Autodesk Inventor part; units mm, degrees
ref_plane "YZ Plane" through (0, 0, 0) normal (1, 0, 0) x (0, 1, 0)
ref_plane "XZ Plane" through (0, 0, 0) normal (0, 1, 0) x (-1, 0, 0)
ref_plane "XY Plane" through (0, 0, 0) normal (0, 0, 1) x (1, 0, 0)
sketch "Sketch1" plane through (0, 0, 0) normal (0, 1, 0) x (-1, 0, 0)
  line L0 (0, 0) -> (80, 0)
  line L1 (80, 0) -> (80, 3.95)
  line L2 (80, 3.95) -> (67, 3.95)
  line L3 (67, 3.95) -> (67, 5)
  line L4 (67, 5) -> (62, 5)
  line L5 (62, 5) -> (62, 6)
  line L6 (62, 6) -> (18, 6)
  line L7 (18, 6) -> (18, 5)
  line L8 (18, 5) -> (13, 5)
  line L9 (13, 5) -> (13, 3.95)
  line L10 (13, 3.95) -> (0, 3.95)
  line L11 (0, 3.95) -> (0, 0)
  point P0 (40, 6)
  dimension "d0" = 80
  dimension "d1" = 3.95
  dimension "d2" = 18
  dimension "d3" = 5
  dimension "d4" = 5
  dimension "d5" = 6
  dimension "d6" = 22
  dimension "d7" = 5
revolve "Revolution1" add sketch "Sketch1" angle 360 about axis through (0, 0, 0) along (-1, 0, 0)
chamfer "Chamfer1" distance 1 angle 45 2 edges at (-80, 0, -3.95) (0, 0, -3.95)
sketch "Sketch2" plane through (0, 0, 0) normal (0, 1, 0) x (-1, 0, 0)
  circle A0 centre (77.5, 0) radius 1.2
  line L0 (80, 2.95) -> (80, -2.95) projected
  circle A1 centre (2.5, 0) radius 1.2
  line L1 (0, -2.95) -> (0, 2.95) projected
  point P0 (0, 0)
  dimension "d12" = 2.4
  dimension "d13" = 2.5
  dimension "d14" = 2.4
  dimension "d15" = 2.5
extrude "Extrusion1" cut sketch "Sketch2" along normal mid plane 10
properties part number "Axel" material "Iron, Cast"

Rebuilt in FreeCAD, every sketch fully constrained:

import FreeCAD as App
import Part
import Sketcher
from FreeCAD import Vector
Q = App.Units.Quantity


def edges_at(feature, points):
    """Names of the edges that pass closest to the given points."""
    edges = feature.Shape.Edges
    near = lambda p: min(range(len(edges)), key=lambda i: edges[i].distToShape(Part.Vertex(*p))[0])
    return sorted({f"Edge{near(p) + 1}" for p in points})


def add_polygon(sketch, points):
    """Adds a closed chain of lines whose ends are joined by coincident constraints."""
    first, n = sketch.GeometryCount, len(points)
    for a, b in zip(points, points[1:] + points[:1]):
        sketch.addGeometry(Part.LineSegment(App.Vector(*a, 0), App.Vector(*b, 0)), False)
    for i in range(n):
        sketch.addConstraint(Sketcher.Constraint("Coincident", first + i, 2, first + (i + 1) % n, 1))

doc = App.newDocument("Part")
body = doc.addObject("PartDesign::Body", "Body")

sketch1 = body.newObject("Sketcher::SketchObject", "Sketch")
sketch1.AttachmentSupport = (doc.getObject("XZ_Plane"), [""])
sketch1.MapMode = "FlatFace"
add_polygon(sketch1, [(0, 4), (0, 0), (-80, 0), (-80, 4), (-67, 4), (-67, 5), (-62, 5), (-62, 6), (-18, 6), (-18, 5), (-13, 5), (-13, 4)])
sketch1.addConstraint([
    Sketcher.Constraint("Vertical", 0),
    Sketcher.Constraint("Horizontal", 1),
    Sketcher.Constraint("Vertical", 2),
    Sketcher.Constraint("Horizontal", 3),
    Sketcher.Constraint("Vertical", 4),
    Sketcher.Constraint("Horizontal", 5),
    Sketcher.Constraint("Vertical", 6),
    Sketcher.Constraint("Horizontal", 7),
    Sketcher.Constraint("Vertical", 8),
    Sketcher.Constraint("Horizontal", 9),
    Sketcher.Constraint("Vertical", 10),
    Sketcher.Constraint("Horizontal", 11),
    Sketcher.Constraint("Coincident", 0, 2, -1, 1),
    Sketcher.Constraint("Horizontal", 5, 2, 8, 2),
    Sketcher.Constraint("Horizontal", 3, 2, 10, 2),
    Sketcher.Constraint("Equal", 5, 9),
    Sketcher.Constraint("Equal", 3, 11),
    Sketcher.Constraint("DistanceX", 1, 2, 1, 1, Q("80 mm")),
    Sketcher.Constraint("DistanceX", 5, 1, 5, 2, Q("5 mm")),
    Sketcher.Constraint("DistanceY", -1, 1, 4, 2, Q("5 mm")),
    Sketcher.Constraint("DistanceY", -1, 1, 6, 2, Q("6 mm")),
    Sketcher.Constraint("DistanceX", 7, 2, -1, 1, Q("18 mm")),
    Sketcher.Constraint("DistanceY", 0, 2, 0, 1, Q("3.95 mm")),
])
revolution = body.newObject("PartDesign::Revolution", "Revolution")
revolution.Profile = sketch1
revolution.ReferenceAxis = (sketch1, ["H_Axis"])
revolution.Angle = 360
doc.recompute()

chamfer = body.newObject("PartDesign::Chamfer", "Chamfer")
chamfer.Base = (revolution, edges_at(revolution, [(-80, 0, -3.95), (0, 0, -3.95)]))
chamfer.Size = 1

sketch2 = body.newObject("Sketcher::SketchObject", "Sketch001")
sketch2.AttachmentSupport = (doc.getObject("XZ_Plane"), [""])
sketch2.MapMode = "FlatFace"
sketch2.addGeometry([
    Part.Circle(Vector(-77.5, 0, 0), Vector(0, 0, 1), 1.2),
    Part.Circle(Vector(-2.5, 0, 0), Vector(0, 0, 1), 1.2),
], False)
sketch2.addConstraint([
    Sketcher.Constraint("Equal", 0, 1),
    Sketcher.Constraint("PointOnObject", 0, 3, -1),
    Sketcher.Constraint("PointOnObject", 1, 3, -1),
    Sketcher.Constraint("Diameter", 0, Q("2.4 mm")),
    Sketcher.Constraint("DistanceX", 1, 3, -1, 1, Q("2.5 mm")),
    Sketcher.Constraint("DistanceX", 0, 3, 1, 3, Q("75 mm")),
])
pocket1 = body.newObject("PartDesign::Pocket", "Pocket")
pocket1.Profile = sketch2
pocket1.Length = 10
pocket1.Midplane = True

doc.recompute()
